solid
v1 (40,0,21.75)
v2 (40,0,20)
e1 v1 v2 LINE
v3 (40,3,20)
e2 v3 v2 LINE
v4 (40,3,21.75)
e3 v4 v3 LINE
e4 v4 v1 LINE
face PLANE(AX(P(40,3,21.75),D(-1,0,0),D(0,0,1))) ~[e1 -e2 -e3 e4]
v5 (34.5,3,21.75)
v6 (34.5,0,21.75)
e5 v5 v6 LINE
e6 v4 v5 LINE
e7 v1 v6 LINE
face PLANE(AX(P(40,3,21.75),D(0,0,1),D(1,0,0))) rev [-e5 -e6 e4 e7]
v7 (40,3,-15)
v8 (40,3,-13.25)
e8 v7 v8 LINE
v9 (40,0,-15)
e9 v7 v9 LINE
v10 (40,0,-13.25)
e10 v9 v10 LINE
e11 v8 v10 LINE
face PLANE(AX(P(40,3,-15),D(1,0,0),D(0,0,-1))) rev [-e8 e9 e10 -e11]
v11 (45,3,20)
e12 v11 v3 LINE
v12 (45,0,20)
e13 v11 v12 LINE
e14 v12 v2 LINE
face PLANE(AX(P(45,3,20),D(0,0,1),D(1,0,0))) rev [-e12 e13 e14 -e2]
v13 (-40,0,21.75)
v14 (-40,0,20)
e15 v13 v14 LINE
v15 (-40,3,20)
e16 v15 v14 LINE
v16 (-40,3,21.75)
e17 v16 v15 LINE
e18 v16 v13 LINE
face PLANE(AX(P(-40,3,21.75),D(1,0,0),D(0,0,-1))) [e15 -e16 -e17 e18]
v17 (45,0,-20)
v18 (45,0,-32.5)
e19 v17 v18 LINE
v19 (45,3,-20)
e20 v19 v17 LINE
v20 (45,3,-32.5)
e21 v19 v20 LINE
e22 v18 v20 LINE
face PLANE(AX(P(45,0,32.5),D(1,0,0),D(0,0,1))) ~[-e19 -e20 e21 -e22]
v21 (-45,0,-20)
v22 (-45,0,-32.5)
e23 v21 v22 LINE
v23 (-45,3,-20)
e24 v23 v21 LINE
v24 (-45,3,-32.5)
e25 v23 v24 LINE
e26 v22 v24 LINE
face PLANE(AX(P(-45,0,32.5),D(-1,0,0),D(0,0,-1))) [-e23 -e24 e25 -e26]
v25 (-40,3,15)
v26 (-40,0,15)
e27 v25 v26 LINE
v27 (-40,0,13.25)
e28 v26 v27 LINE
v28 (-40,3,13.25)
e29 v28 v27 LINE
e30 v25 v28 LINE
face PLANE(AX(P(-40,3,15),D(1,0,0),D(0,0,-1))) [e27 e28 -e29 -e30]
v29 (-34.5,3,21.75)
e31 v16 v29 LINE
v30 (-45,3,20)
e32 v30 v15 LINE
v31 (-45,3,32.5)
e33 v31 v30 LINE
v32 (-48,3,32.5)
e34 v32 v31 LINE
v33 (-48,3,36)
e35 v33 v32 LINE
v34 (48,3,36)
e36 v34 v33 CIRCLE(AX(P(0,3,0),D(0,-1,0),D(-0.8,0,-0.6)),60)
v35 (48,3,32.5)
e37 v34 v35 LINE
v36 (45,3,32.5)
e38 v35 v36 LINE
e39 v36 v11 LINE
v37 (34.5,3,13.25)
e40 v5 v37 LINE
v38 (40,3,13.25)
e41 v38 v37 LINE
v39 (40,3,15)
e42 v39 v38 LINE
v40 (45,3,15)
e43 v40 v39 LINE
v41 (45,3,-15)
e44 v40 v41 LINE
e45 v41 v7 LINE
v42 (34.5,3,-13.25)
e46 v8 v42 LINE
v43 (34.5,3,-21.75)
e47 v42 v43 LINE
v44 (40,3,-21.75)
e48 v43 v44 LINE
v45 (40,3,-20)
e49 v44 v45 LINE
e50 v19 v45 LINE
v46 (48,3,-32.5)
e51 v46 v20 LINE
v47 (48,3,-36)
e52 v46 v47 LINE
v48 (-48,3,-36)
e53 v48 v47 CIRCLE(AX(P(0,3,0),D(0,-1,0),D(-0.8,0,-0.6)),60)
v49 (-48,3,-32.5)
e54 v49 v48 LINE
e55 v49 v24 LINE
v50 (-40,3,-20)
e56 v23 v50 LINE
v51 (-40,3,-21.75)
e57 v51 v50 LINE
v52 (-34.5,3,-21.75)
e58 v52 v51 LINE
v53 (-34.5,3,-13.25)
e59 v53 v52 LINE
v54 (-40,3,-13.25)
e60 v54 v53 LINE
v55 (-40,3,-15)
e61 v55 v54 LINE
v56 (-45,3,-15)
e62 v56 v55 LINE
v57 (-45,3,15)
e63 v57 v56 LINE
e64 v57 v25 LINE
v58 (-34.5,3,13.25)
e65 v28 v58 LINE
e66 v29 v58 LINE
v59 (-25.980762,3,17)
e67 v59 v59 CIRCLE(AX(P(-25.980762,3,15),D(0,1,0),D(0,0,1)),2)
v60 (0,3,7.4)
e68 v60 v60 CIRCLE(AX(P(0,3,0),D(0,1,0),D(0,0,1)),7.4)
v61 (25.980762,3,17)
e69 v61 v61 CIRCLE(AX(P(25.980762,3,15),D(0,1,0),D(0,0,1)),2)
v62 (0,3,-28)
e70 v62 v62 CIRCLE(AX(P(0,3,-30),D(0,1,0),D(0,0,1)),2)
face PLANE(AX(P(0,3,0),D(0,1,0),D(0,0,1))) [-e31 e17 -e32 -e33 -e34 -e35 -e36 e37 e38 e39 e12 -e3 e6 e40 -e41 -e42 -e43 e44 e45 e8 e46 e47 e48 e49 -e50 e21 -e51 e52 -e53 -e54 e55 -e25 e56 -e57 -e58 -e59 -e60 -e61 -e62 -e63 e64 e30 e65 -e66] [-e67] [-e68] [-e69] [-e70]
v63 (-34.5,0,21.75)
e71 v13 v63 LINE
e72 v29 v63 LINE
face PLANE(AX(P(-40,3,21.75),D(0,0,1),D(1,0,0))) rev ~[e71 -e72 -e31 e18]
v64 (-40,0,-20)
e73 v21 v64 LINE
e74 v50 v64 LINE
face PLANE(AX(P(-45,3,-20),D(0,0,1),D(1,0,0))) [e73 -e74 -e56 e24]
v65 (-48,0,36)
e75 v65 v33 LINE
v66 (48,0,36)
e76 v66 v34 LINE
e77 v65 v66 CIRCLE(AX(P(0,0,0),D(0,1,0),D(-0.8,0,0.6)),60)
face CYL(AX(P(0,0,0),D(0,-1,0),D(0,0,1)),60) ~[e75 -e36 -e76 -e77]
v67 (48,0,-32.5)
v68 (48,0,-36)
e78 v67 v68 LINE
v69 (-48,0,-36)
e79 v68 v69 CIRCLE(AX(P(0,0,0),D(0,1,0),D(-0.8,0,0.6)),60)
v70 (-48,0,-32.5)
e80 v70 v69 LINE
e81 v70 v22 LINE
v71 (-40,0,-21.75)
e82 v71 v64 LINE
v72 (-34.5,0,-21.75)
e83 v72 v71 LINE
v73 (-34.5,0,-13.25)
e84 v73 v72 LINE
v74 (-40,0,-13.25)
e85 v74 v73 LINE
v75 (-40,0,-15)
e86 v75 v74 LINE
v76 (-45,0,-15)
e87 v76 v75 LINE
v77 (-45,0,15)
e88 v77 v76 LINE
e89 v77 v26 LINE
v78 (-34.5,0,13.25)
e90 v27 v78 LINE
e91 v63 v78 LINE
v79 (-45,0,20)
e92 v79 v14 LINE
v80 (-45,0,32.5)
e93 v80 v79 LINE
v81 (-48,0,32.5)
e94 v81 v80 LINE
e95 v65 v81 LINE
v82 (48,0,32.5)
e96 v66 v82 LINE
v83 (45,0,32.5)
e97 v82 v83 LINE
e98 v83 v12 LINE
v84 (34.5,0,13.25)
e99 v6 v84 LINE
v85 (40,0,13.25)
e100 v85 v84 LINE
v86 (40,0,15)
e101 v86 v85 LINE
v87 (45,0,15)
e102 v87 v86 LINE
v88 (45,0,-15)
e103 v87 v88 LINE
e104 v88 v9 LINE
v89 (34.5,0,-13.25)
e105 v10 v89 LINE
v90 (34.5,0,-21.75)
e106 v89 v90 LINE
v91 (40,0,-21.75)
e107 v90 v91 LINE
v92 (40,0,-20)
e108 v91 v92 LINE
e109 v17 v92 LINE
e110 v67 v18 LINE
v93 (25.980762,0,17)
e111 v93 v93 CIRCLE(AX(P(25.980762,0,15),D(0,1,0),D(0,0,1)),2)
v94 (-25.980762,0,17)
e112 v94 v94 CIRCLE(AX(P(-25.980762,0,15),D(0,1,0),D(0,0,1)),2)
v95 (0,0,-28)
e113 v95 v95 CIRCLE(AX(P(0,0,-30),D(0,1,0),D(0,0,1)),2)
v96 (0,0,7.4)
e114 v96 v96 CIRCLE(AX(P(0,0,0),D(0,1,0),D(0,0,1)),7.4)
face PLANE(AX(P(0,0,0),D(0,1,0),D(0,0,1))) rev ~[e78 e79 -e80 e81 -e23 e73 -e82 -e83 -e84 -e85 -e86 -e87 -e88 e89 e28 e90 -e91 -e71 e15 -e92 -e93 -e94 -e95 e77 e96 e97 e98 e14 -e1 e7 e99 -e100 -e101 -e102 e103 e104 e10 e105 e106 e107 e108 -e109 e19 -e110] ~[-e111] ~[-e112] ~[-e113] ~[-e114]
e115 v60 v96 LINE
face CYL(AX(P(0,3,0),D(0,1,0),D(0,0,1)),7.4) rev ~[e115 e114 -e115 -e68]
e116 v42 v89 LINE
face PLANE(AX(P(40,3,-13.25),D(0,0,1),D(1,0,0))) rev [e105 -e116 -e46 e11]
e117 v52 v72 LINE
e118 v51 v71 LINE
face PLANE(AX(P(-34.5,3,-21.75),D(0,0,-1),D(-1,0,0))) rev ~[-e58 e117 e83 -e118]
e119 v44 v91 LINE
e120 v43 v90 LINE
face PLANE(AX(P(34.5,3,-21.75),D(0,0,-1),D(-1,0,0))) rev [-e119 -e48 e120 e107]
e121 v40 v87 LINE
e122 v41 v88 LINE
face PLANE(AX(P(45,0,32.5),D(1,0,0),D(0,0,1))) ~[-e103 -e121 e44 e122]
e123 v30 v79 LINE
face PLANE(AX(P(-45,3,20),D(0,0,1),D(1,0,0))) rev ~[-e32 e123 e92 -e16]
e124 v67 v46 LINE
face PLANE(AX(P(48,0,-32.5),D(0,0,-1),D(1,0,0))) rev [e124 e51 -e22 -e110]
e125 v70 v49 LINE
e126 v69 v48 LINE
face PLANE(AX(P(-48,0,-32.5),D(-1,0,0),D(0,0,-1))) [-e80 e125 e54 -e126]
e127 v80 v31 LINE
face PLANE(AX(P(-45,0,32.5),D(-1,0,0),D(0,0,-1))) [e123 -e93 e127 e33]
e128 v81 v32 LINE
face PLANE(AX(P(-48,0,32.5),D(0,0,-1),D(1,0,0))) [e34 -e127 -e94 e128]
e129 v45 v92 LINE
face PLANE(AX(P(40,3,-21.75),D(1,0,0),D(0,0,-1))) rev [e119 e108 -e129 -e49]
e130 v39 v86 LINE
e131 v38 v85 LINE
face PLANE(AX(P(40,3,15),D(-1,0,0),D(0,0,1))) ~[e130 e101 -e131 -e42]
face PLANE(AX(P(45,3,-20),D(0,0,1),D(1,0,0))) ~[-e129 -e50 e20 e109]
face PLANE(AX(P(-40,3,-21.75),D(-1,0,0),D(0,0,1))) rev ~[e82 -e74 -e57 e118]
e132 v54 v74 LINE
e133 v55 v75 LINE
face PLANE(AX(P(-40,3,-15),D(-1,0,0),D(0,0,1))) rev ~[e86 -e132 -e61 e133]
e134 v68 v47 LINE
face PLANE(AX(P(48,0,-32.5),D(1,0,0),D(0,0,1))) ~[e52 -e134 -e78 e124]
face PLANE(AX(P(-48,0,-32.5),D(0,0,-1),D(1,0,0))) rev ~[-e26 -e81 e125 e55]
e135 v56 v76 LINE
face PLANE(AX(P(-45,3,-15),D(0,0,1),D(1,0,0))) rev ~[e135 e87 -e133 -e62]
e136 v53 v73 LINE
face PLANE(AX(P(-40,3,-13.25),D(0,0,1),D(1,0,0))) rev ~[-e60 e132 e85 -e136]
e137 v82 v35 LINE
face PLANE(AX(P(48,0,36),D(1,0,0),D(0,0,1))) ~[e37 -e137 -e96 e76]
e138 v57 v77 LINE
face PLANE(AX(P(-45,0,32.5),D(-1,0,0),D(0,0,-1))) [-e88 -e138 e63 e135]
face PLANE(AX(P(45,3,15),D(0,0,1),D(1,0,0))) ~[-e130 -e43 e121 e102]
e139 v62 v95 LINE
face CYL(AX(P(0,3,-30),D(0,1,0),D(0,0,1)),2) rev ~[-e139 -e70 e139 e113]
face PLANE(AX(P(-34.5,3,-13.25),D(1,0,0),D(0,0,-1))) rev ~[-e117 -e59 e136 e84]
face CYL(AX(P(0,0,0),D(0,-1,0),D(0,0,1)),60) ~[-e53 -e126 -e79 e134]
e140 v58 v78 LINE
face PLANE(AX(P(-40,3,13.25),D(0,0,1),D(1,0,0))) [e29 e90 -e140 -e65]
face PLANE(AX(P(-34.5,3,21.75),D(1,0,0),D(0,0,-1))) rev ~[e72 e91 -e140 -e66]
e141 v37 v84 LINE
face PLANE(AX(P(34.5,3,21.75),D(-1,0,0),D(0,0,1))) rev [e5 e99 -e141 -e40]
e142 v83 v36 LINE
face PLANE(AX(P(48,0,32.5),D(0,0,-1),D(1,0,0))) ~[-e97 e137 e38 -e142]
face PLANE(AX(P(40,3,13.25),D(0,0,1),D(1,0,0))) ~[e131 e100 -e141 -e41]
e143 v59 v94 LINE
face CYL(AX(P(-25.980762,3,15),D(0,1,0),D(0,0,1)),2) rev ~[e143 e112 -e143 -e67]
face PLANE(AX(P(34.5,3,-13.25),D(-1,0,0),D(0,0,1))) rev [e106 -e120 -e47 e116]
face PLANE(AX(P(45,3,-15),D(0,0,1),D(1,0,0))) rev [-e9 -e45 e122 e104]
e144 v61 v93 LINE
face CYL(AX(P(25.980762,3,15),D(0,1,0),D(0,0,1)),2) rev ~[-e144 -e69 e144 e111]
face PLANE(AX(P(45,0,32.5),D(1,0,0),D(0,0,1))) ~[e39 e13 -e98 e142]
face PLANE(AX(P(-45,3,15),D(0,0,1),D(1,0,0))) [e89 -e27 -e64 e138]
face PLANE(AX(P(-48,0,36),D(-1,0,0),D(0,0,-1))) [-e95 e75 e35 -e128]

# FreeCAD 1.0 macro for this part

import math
import FreeCAD as App
import Part
import Sketcher
from FreeCAD import Vector
Q = App.Units.Quantity

doc = App.newDocument("Part")
body = doc.addObject("PartDesign::Body", "Body")

sketch1 = body.newObject("Sketcher::SketchObject", "Sketch")
sketch1.AttachmentSupport = (doc.getObject("XZ_Plane"), [""])
sketch1.MapMode = "FlatFace"
sketch1.addGeometry(Part.Circle(Vector(0, 0, 0), Vector(0, 0, 1), 60), False)
sketch1.addConstraint([
    Sketcher.Constraint("Coincident", 0, 3, -1, 1),
    Sketcher.Constraint("Diameter", 0, Q("120 mm")),
])
pad1 = body.newObject("PartDesign::Pad", "Pad")
pad1.Profile = sketch1
pad1.Length = 3
pad1.Reversed = True

sketch2 = body.newObject("Sketcher::SketchObject", "Sketch001")
sketch2.AttachmentSupport = (doc.getObject("XZ_Plane"), [""])
sketch2.MapMode = "FlatFace"
sketch2.AttachmentOffset = App.Placement(Vector(0, 0, -3), App.Rotation())
sketch2.addGeometry(Part.Circle(Vector(0, 0, 0), Vector(0, 0, 1), 7), False)
sketch2.addConstraint([
    Sketcher.Constraint("Coincident", 0, 3, -1, 1),
    Sketcher.Constraint("Diameter", 0, Q("14.8 mm")),
])
pocket1 = body.newObject("PartDesign::Pocket", "Pocket")
pocket1.Profile = sketch2
pocket1.Type = "ThroughAll"
pocket1.Reversed = True

sketch3 = body.newObject("Sketcher::SketchObject", "Sketch002")
sketch3.AttachmentSupport = (doc.getObject("XZ_Plane"), [""])
sketch3.MapMode = "FlatFace"
sketch3.addGeometry([
    Part.LineSegment(Vector(-48, 32.5, 0), Vector(-45, 32.5, 0)),
    Part.LineSegment(Vector(-45, 32.5, 0), Vector(-45, -32.5, 0)),
    Part.LineSegment(Vector(-45, -32.5, 0), Vector(-48, -32.5, 0)),
    Part.LineSegment(Vector(-48, -32.5, 0), Vector(-48, -36, 0)),
    Part.ArcOfCircle(Part.Circle(Vector(0, 0, 0), Vector(0, 0, 1), 60), math.radians(143), math.radians(217)),
    Part.LineSegment(Vector(-48, 36, 0), Vector(-48, 32.5, 0)),
], False)
sketch3.addConstraint([
    Sketcher.Constraint("Coincident", 0, 2, 1, 1),
    Sketcher.Constraint("Coincident", 1, 2, 2, 1),
    Sketcher.Constraint("Coincident", 2, 2, 3, 1),
    Sketcher.Constraint("Coincident", 3, 2, 4, 2),
    Sketcher.Constraint("Coincident", 4, 1, 5, 1),
    Sketcher.Constraint("Coincident", 5, 2, 0, 1),
    Sketcher.Constraint("Horizontal", 0),
    Sketcher.Constraint("Vertical", 1),
    Sketcher.Constraint("Horizontal", 2),
    Sketcher.Constraint("Vertical", 3),
    Sketcher.Constraint("Vertical", 5),
    Sketcher.Constraint("Coincident", 4, 3, -1, 1),
    Sketcher.Constraint("Symmetric", 2, 2, 5, 2, -1),
    Sketcher.Constraint("Radius", 4, Q("60 mm")),
    Sketcher.Constraint("DistanceX", 0, 1, 0, 2, Q("3 mm")),
    Sketcher.Constraint("DistanceY", 1, 2, 1, 1, Q("65 mm")),
    Sketcher.Constraint("DistanceY", 3, 2, 3, 1, Q("3.5 mm")),
])
pocket2 = body.newObject("PartDesign::Pocket", "Pocket001")
pocket2.Profile = sketch3
pocket2.Length = 3

sketch4 = body.newObject("Sketcher::SketchObject", "Sketch003")
sketch4.AttachmentSupport = (doc.getObject("XZ_Plane"), [""])
sketch4.MapMode = "FlatFace"
sketch4.AttachmentOffset = App.Placement(Vector(0, 0, -3), App.Rotation())
sketch4.addGeometry([
    Part.LineSegment(Vector(-40, -21.8, 0), Vector(-40, -20, 0)),
    Part.LineSegment(Vector(-40, -20, 0), Vector(-45, -20, 0)),
    Part.LineSegment(Vector(-45, -20, 0), Vector(-45, -15, 0)),
    Part.LineSegment(Vector(-45, -15, 0), Vector(-40, -15, 0)),
    Part.LineSegment(Vector(-40, -15, 0), Vector(-40, -13.2, 0)),
    Part.LineSegment(Vector(-40, -13.2, 0), Vector(-34.5, -13.2, 0)),
    Part.LineSegment(Vector(-34.5, -13.2, 0), Vector(-34.5, -21.8, 0)),
    Part.LineSegment(Vector(-34.5, -21.8, 0), Vector(-40, -21.8, 0)),
    Part.LineSegment(Vector(-40, 20, 0), Vector(-40, 21.8, 0)),
    Part.LineSegment(Vector(-40, 21.8, 0), Vector(-34.5, 21.8, 0)),
    Part.LineSegment(Vector(-34.5, 21.8, 0), Vector(-34.5, 13.2, 0)),
    Part.LineSegment(Vector(-34.5, 13.2, 0), Vector(-40, 13.2, 0)),
    Part.LineSegment(Vector(-40, 13.2, 0), Vector(-40, 15, 0)),
    Part.LineSegment(Vector(-40, 15, 0), Vector(-45, 15, 0)),
    Part.LineSegment(Vector(-45, 15, 0), Vector(-45, 20, 0)),
    Part.LineSegment(Vector(-45, 20, 0), Vector(-40, 20, 0)),
], False)
sketch4.addConstraint([
    Sketcher.Constraint("Coincident", 0, 2, 1, 1),
    Sketcher.Constraint("Coincident", 1, 2, 2, 1),
    Sketcher.Constraint("Coincident", 2, 2, 3, 1),
    Sketcher.Constraint("Coincident", 3, 2, 4, 1),
    Sketcher.Constraint("Coincident", 4, 2, 5, 1),
    Sketcher.Constraint("Coincident", 5, 2, 6, 1),
    Sketcher.Constraint("Coincident", 6, 2, 7, 1),
    Sketcher.Constraint("Coincident", 7, 2, 0, 1),
    Sketcher.Constraint("Coincident", 8, 2, 9, 1),
    Sketcher.Constraint("Coincident", 9, 2, 10, 1),
    Sketcher.Constraint("Coincident", 10, 2, 11, 1),
    Sketcher.Constraint("Coincident", 11, 2, 12, 1),
    Sketcher.Constraint("Coincident", 12, 2, 13, 1),
    Sketcher.Constraint("Coincident", 13, 2, 14, 1),
    Sketcher.Constraint("Coincident", 14, 2, 15, 1),
    Sketcher.Constraint("Coincident", 15, 2, 8, 1),
    Sketcher.Constraint("Vertical", 0),
    Sketcher.Constraint("Horizontal", 1),
    Sketcher.Constraint("Vertical", 2),
    Sketcher.Constraint("Horizontal", 3),
    Sketcher.Constraint("Vertical", 4),
    Sketcher.Constraint("Horizontal", 5),
    Sketcher.Constraint("Vertical", 6),
    Sketcher.Constraint("Horizontal", 7),
    Sketcher.Constraint("Vertical", 8),
    Sketcher.Constraint("Horizontal", 9),
    Sketcher.Constraint("Vertical", 10),
    Sketcher.Constraint("Horizontal", 11),
    Sketcher.Constraint("Vertical", 12),
    Sketcher.Constraint("Horizontal", 13),
    Sketcher.Constraint("Vertical", 14),
    Sketcher.Constraint("Horizontal", 15),
    Sketcher.Constraint("Symmetric", 7, 2, 8, 2, -1),
    Sketcher.Constraint("Symmetric", 5, 2, 10, 2, -1),
    Sketcher.Constraint("Symmetric", 3, 2, 12, 2, -1),
    Sketcher.Constraint("Symmetric", 1, 2, 14, 2, -1),
    Sketcher.Constraint("Vertical", 0, 2, 3, 2),
    Sketcher.Constraint("Equal", 15, 2),
    Sketcher.Constraint("Equal", 0, 4),
    Sketcher.Constraint("DistanceX", 1, 2, 1, 1, Q("5 mm")),
    Sketcher.Constraint("DistanceX", 5, 1, 5, 2, Q("5.5 mm")),
    Sketcher.Constraint("DistanceY", 6, 2, 6, 1, Q("8.5 mm")),
    Sketcher.Constraint("DistanceX", 0, 2, -1, 1, Q("40 mm")),
    Sketcher.Constraint("DistanceY", 0, 2, -1, 1, Q("20 mm")),
])
pocket3 = body.newObject("PartDesign::Pocket", "Pocket002")
pocket3.Profile = sketch4
pocket3.Length = 3
pocket3.Reversed = True
doc.recompute()

mirrored = body.newObject("PartDesign::Mirrored", "Mirrored")
mirrored.Originals = [pocket2, pocket3]
mirrored.MirrorPlane = (doc.getObject("YZ_Plane"), [""])
body.Tip = mirrored

sketch5 = body.newObject("Sketcher::SketchObject", "Sketch004")
sketch5.AttachmentSupport = (doc.getObject("XZ_Plane"), [""])
sketch5.MapMode = "FlatFace"
sketch5.AttachmentOffset = App.Placement(Vector(0, 0, -3), App.Rotation())
sketch5.addGeometry([
    Part.Circle(Vector(26, 15, 0), Vector(0, 0, 1), 2),
    Part.Circle(Vector(0, -30, 0), Vector(0, 0, 1), 2),
    Part.Circle(Vector(-26, 15, 0), Vector(0, 0, 1), 2),
], False)
sketch5.addConstraint([
    Sketcher.Constraint("Equal", 0, 1),
    Sketcher.Constraint("Equal", 1, 2),
    Sketcher.Constraint("Symmetric", 0, 3, 2, 3, -2),
    Sketcher.Constraint("PointOnObject", 1, 3, -2),
    Sketcher.Constraint("Diameter", 0, Q("4 mm")),
    Sketcher.Constraint("DistanceY", -1, 1, 0, 3, Q("15 mm")),
    Sketcher.Constraint("DistanceY", 1, 3, -1, 1, Q("30 mm")),
    Sketcher.Constraint("DistanceX", -1, 1, 0, 3, Q("25.980762 mm")),
])
pocket4 = body.newObject("PartDesign::Pocket", "Pocket003")
pocket4.Profile = sketch5
pocket4.Type = "ThroughAll"
pocket4.Reversed = True

doc.recompute()
